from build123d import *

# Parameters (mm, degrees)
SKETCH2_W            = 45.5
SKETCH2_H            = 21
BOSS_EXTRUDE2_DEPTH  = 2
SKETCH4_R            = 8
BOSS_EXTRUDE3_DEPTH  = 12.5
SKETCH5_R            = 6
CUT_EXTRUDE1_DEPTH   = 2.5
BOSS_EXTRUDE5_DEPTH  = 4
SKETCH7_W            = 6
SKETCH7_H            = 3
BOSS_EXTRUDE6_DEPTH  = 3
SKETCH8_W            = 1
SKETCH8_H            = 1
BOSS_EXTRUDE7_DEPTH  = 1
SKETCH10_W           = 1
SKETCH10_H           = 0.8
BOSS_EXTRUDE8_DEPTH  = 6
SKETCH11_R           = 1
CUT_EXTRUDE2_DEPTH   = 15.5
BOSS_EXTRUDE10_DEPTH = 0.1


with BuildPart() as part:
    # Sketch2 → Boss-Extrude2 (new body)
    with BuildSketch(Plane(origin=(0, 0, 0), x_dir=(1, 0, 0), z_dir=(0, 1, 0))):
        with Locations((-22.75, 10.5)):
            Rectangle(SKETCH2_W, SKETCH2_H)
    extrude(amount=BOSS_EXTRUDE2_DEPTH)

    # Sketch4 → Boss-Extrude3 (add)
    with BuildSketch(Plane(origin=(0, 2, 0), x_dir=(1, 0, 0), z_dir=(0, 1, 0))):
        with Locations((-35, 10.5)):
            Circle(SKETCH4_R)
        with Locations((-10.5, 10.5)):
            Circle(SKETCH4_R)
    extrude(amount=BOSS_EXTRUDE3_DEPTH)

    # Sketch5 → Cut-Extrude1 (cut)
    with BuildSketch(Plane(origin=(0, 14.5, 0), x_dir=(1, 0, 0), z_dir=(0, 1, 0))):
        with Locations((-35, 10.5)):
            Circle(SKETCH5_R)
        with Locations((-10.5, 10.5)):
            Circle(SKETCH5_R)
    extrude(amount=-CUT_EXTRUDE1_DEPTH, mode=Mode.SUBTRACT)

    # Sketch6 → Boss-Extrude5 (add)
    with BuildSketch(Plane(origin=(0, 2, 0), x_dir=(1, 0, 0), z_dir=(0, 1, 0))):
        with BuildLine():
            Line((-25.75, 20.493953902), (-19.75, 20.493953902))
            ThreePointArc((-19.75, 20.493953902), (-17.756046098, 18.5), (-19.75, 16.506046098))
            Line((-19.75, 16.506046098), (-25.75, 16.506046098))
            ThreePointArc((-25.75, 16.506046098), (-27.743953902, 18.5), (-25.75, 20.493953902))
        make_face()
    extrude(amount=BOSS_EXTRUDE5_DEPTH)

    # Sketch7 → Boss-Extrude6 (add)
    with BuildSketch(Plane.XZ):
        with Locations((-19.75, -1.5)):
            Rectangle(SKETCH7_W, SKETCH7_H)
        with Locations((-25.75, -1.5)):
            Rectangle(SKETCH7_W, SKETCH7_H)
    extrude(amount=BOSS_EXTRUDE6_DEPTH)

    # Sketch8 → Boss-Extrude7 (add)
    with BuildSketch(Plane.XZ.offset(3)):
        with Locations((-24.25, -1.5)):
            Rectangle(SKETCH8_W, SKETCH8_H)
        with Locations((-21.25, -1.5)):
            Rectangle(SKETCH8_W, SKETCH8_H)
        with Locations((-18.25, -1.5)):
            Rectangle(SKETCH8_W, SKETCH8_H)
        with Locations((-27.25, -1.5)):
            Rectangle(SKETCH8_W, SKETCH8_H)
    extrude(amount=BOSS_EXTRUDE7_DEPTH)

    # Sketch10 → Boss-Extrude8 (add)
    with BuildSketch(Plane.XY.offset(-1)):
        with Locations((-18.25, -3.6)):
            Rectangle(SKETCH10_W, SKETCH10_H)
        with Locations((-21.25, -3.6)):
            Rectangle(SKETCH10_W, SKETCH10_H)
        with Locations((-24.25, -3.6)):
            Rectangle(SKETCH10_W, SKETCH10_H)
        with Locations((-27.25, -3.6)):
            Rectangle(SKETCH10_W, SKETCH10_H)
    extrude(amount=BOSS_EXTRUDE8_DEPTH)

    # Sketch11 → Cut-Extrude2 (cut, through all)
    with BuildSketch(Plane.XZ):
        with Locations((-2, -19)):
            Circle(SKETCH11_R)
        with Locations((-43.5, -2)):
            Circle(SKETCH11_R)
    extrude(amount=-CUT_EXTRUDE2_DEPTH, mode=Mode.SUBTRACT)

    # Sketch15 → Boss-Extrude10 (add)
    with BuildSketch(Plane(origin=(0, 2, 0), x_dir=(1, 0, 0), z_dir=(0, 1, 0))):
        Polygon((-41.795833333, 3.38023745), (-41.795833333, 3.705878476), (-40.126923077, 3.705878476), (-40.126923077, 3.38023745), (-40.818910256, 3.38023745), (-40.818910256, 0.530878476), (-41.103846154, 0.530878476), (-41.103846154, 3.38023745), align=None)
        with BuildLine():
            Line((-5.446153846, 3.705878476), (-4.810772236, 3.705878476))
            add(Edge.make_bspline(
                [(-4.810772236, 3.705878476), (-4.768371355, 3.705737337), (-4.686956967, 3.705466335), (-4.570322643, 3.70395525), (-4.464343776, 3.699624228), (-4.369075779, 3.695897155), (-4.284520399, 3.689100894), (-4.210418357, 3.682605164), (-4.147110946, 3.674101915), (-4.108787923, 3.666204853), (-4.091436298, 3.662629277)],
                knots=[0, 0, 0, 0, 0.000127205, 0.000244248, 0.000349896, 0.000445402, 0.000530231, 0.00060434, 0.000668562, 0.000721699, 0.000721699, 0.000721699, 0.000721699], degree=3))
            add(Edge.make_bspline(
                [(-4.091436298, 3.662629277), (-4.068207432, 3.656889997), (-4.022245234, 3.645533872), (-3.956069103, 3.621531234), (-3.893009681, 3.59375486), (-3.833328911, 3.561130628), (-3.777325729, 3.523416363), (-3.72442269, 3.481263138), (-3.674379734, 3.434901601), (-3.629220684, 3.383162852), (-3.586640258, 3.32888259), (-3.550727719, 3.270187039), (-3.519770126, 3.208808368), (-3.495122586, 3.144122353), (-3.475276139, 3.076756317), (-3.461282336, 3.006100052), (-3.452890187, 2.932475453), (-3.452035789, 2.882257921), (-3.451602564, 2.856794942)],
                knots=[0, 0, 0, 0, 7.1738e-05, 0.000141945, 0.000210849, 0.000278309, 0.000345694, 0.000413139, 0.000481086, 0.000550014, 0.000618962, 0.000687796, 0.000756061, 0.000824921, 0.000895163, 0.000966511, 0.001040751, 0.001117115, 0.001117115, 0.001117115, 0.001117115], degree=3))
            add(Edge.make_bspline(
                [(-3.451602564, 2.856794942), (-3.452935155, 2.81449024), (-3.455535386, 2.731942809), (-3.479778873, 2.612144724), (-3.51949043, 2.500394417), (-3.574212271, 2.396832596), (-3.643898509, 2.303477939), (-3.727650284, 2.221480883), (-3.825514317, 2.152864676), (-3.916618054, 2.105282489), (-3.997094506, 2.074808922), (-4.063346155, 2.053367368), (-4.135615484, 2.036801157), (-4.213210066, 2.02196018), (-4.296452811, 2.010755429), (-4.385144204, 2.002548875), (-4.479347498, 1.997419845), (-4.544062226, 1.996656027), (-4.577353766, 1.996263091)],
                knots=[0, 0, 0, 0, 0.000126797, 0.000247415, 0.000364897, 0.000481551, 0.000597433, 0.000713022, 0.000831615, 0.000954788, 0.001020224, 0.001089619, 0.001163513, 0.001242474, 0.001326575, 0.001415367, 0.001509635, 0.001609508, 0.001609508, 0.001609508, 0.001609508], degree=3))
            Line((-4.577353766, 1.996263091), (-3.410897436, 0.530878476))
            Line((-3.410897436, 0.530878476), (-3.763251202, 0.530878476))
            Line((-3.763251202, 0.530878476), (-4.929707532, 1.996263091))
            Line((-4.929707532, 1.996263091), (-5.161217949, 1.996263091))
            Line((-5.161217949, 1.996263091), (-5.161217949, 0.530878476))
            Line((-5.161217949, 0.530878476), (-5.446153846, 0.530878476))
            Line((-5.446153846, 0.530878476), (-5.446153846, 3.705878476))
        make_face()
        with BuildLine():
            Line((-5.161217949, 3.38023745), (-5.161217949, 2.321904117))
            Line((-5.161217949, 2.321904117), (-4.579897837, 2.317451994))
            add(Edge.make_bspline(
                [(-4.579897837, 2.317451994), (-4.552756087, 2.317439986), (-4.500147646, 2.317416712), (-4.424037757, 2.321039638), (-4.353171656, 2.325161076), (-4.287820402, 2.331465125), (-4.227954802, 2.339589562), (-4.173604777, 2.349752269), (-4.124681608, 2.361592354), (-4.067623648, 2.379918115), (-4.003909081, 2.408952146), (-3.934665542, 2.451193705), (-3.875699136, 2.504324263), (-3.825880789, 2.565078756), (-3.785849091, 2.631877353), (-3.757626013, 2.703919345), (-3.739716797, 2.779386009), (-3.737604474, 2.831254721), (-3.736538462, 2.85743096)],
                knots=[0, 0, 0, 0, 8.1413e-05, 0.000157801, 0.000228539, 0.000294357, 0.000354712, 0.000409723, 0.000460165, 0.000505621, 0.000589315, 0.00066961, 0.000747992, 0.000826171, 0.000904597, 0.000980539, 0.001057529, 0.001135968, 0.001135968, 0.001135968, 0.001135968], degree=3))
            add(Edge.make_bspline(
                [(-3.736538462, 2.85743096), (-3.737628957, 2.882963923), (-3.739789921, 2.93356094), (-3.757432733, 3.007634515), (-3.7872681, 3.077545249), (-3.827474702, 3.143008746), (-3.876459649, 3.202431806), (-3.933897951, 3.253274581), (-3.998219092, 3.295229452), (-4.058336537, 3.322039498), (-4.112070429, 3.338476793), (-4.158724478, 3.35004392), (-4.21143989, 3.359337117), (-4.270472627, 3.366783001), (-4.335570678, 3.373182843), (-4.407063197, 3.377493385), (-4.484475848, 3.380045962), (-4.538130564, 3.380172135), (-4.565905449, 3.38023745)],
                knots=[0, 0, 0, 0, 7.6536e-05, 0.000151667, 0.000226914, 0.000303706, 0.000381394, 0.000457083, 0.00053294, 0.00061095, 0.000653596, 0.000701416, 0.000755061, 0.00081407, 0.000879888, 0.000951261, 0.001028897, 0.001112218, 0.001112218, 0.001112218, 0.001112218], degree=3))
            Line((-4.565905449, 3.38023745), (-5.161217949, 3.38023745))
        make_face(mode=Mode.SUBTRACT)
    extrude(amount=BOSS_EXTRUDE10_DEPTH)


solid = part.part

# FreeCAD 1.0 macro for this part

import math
import FreeCAD as App
import Part
import Sketcher
from FreeCAD import Vector

doc = App.newDocument("Part")
params = doc.addObject("Spreadsheet::Sheet", "Params")
for row, (alias, value) in enumerate([
    ("sketch1_height", "21 mm"),
    ("sketch1_width", "45.5 mm"),
    ("pad1_length", "2 mm"),
    ("sketch2_diameter", "16 mm"),
    ("pad2_length", "12.5 mm"),
    ("sketch3_diameter", "12 mm"),
    ("pocket1_length", "2.5 mm"),
    ("sketch4_width", "6 mm"),
    ("pad3_length", "4 mm"),
    ("sketch5_width", "12 mm"),
    ("sketch5_height", "3 mm"),
    ("pad4_length", "3 mm"),
    ("sketch6_width", "1 mm"),
    ("pad5_length", "1 mm"),
    ("sketch7_width", "1 mm"),
    ("sketch7_height", "0.8 mm"),
    ("pad6_length", "6 mm"),
    ("sketch8_diameter", "2 mm"),
    ("pad7_length", "0.1 mm"),
], start=1):
    params.set(f"A{row}", alias)
    params.set(f"B{row}", "=" + value)
    params.setAlias(f"B{row}", alias)

body = doc.addObject("PartDesign::Body", "Body")

sketch1 = doc.addObject("Sketcher::SketchObject", "Sketch")
body.addObject(sketch1)
sketch1.AttachmentSupport = (doc.XZ_Plane, [""])
sketch1.MapMode = "FlatFace"
sketch1.addGeometry([
    Part.LineSegment(Vector(-46, -21, 0), Vector(-46, 0, 0)),
    Part.LineSegment(Vector(-46, 0, 0), Vector(0, 0, 0)),
    Part.LineSegment(Vector(0, 0, 0), Vector(0, -21, 0)),
    Part.LineSegment(Vector(0, -21, 0), Vector(-46, -21, 0)),
], False)
sketch1.addConstraint([
    Sketcher.Constraint("Coincident", 0, 2, 1, 1),
    Sketcher.Constraint("Coincident", 1, 2, 2, 1),
    Sketcher.Constraint("Coincident", 2, 2, 3, 1),
    Sketcher.Constraint("Coincident", 3, 2, 0, 1),
    Sketcher.Constraint("Vertical", 0),
    Sketcher.Constraint("Horizontal", 1),
    Sketcher.Constraint("Vertical", 2),
    Sketcher.Constraint("Horizontal", 3),
    Sketcher.Constraint("Coincident", 1, 2, -1, 1),
    Sketcher.Constraint("DistanceY", 0, 1, 0, 2, 21.0),
    Sketcher.Constraint("DistanceX", 1, 1, 1, 2, 45.5),
])
sketch1.setExpression("Constraints[9]", "Params.sketch1_height")
sketch1.setExpression("Constraints[10]", "Params.sketch1_width")
pad1 = doc.addObject("PartDesign::Pad", "Pad")
body.addObject(pad1)
pad1.Profile = sketch1
pad1.setExpression("Length", "Params.pad1_length")
pad1.Reversed = True

sketch2 = doc.addObject("Sketcher::SketchObject", "Sketch001")
body.addObject(sketch2)
sketch2.AttachmentSupport = (doc.XZ_Plane, [""])
sketch2.MapMode = "FlatFace"
sketch2.AttachmentOffset = App.Placement(Vector(0, 0, -2), App.Rotation())
sketch2.addGeometry([
    Part.Circle(Vector(-35, -10, 0), Vector(0, 0, 1), 8),
    Part.Circle(Vector(-10, -10, 0), Vector(0, 0, 1), 8),
], False)
sketch2.addConstraint([
    Sketcher.Constraint("Equal", 0, 1),
    Sketcher.Constraint("Horizontal", 0, 3, 1, 3),
    Sketcher.Constraint("Diameter", 0, 16.0),
    Sketcher.Constraint("DistanceX", 0, 3, -1, 1, 35.0),
    Sketcher.Constraint("DistanceY", 0, 3, -1, 1, 10.5),
    Sketcher.Constraint("DistanceX", 1, 3, -1, 1, 10.5),
])
sketch2.setExpression("Constraints[2]", "Params.sketch2_diameter")
pad2 = doc.addObject("PartDesign::Pad", "Pad001")
body.addObject(pad2)
pad2.Profile = sketch2
pad2.setExpression("Length", "Params.pad2_length")
pad2.Reversed = True

sketch3 = doc.addObject("Sketcher::SketchObject", "Sketch002")
body.addObject(sketch3)
sketch3.AttachmentSupport = (doc.XZ_Plane, [""])
sketch3.MapMode = "FlatFace"
sketch3.AttachmentOffset = App.Placement(Vector(0, 0, -14.5), App.Rotation())
sketch3.addGeometry([
    Part.Circle(Vector(-35, -10, 0), Vector(0, 0, 1), 6),
    Part.Circle(Vector(-10, -10, 0), Vector(0, 0, 1), 6),
], False)
sketch3.addConstraint([
    Sketcher.Constraint("Equal", 0, 1),
    Sketcher.Constraint("Horizontal", 0, 3, 1, 3),
    Sketcher.Constraint("Diameter", 0, 12.0),
    Sketcher.Constraint("DistanceX", 0, 3, -1, 1, 35.0),
    Sketcher.Constraint("DistanceY", 0, 3, -1, 1, 10.5),
    Sketcher.Constraint("DistanceX", 1, 3, -1, 1, 10.5),
])
sketch3.setExpression("Constraints[2]", "Params.sketch3_diameter")
pocket1 = doc.addObject("PartDesign::Pocket", "Pocket")
body.addObject(pocket1)
pocket1.Profile = sketch3
pocket1.setExpression("Length", "Params.pocket1_length")
pocket1.Reversed = True

sketch4 = doc.addObject("Sketcher::SketchObject", "Sketch003")
body.addObject(sketch4)
sketch4.AttachmentSupport = (doc.XZ_Plane, [""])
sketch4.MapMode = "FlatFace"
sketch4.AttachmentOffset = App.Placement(Vector(0, 0, -2), App.Rotation())
sketch4.addGeometry([
    Part.LineSegment(Vector(-19.8, -20.5, 0), Vector(-25.8, -20.5, 0)),
    Part.ArcOfCircle(Part.Circle(Vector(-25.8, -18.5, 0), Vector(0, 0, 1), 2), math.radians(90), math.radians(270)),
    Part.LineSegment(Vector(-25.8, -16.5, 0), Vector(-19.8, -16.5, 0)),
    Part.ArcOfCircle(Part.Circle(Vector(-19.8, -18.5, 0), Vector(0, 0, 1), 2), math.radians(-90), math.radians(90)),
], False)
sketch4.addConstraint([
    Sketcher.Constraint("Tangent", 0, 2, 1, 2),
    Sketcher.Constraint("Tangent", 1, 1, 2, 1),
    Sketcher.Constraint("Tangent", 2, 2, 3, 2),
    Sketcher.Constraint("Tangent", 3, 1, 0, 1),
    Sketcher.Constraint("Horizontal", 0),
    Sketcher.Constraint("Horizontal", 2),
    Sketcher.Constraint("DistanceX", 0, 2, 0, 1, 6.0),
    Sketcher.Constraint("DistanceY", 1, 3, -1, 1, 18.5),
    Sketcher.Constraint("DistanceX", 1, 3, -1, 1, 25.75),
    Sketcher.Constraint("Radius", 1, 1.993954),
])
sketch4.setExpression("Constraints[6]", "Params.sketch4_width")
pad3 = doc.addObject("PartDesign::Pad", "Pad002")
body.addObject(pad3)
pad3.Profile = sketch4
pad3.setExpression("Length", "Params.pad3_length")
pad3.Reversed = True

sketch5 = doc.addObject("Sketcher::SketchObject", "Sketch004")
body.addObject(sketch5)
sketch5.AttachmentSupport = (doc.XZ_Plane, [""])
sketch5.MapMode = "FlatFace"
sketch5.addGeometry([
    Part.LineSegment(Vector(-16.8, -3, 0), Vector(-16.8, 0, 0)),
    Part.LineSegment(Vector(-16.8, 0, 0), Vector(-28.8, 0, 0)),
    Part.LineSegment(Vector(-28.8, 0, 0), Vector(-28.8, -3, 0)),
    Part.LineSegment(Vector(-28.8, -3, 0), Vector(-16.8, -3, 0)),
], False)
sketch5.addConstraint([
    Sketcher.Constraint("Coincident", 0, 2, 1, 1),
    Sketcher.Constraint("Coincident", 1, 2, 2, 1),
    Sketcher.Constraint("Coincident", 2, 2, 3, 1),
    Sketcher.Constraint("Coincident", 3, 2, 0, 1),
    Sketcher.Constraint("Vertical", 0),
    Sketcher.Constraint("Horizontal", 1),
    Sketcher.Constraint("Vertical", 2),
    Sketcher.Constraint("Horizontal", 3),
    Sketcher.Constraint("PointOnObject", 0, 2, -1),
    Sketcher.Constraint("DistanceX", 1, 2, 1, 1, 12.0),
    Sketcher.Constraint("DistanceY", 0, 1, 0, 2, 3.0),
    Sketcher.Constraint("DistanceX", 0, 2, -1, 1, 16.75),
])
sketch5.setExpression("Constraints[9]", "Params.sketch5_width")
sketch5.setExpression("Constraints[10]", "Params.sketch5_height")
pad4 = doc.addObject("PartDesign::Pad", "Pad003")
body.addObject(pad4)
pad4.Profile = sketch5
pad4.setExpression("Length", "Params.pad4_length")

sketch6 = doc.addObject("Sketcher::SketchObject", "Sketch005")
body.addObject(sketch6)
sketch6.AttachmentSupport = (doc.XZ_Plane, [""])
sketch6.MapMode = "FlatFace"
sketch6.AttachmentOffset = App.Placement(Vector(0, 0, 3), App.Rotation())
sketch6.addGeometry([
    Part.LineSegment(Vector(-24.8, -1, 0), Vector(-24.8, -2, 0)),
    Part.LineSegment(Vector(-24.8, -2, 0), Vector(-23.8, -2, 0)),
    Part.LineSegment(Vector(-23.8, -2, 0), Vector(-23.8, -1, 0)),
    Part.LineSegment(Vector(-23.8, -1, 0), Vector(-24.8, -1, 0)),
    Part.LineSegment(Vector(-21.8, -1, 0), Vector(-21.8, -2, 0)),
    Part.LineSegment(Vector(-21.8, -2, 0), Vector(-20.8, -2, 0)),
    Part.LineSegment(Vector(-20.8, -2, 0), Vector(-20.8, -1, 0)),
    Part.LineSegment(Vector(-20.8, -1, 0), Vector(-21.8, -1, 0)),
    Part.LineSegment(Vector(-18.8, -1, 0), Vector(-18.8, -2, 0)),
    Part.LineSegment(Vector(-18.8, -2, 0), Vector(-17.8, -2, 0)),
    Part.LineSegment(Vector(-17.8, -2, 0), Vector(-17.8, -1, 0)),
    Part.LineSegment(Vector(-17.8, -1, 0), Vector(-18.8, -1, 0)),
    Part.LineSegment(Vector(-27.8, -1, 0), Vector(-27.8, -2, 0)),
    Part.LineSegment(Vector(-27.8, -2, 0), Vector(-26.8, -2, 0)),
    Part.LineSegment(Vector(-26.8, -2, 0), Vector(-26.8, -1, 0)),
    Part.LineSegment(Vector(-26.8, -1, 0), Vector(-27.8, -1, 0)),
], False)
sketch6.addConstraint([
    Sketcher.Constraint("Coincident", 0, 2, 1, 1),
    Sketcher.Constraint("Coincident", 1, 2, 2, 1),
    Sketcher.Constraint("Coincident", 2, 2, 3, 1),
    Sketcher.Constraint("Coincident", 3, 2, 0, 1),
    Sketcher.Constraint("Coincident", 4, 2, 5, 1),
    Sketcher.Constraint("Coincident", 5, 2, 6, 1),
    Sketcher.Constraint("Coincident", 6, 2, 7, 1),
    Sketcher.Constraint("Coincident", 7, 2, 4, 1),
    Sketcher.Constraint("Coincident", 8, 2, 9, 1),
    Sketcher.Constraint("Coincident", 9, 2, 10, 1),
    Sketcher.Constraint("Coincident", 10, 2, 11, 1),
    Sketcher.Constraint("Coincident", 11, 2, 8, 1),
    Sketcher.Constraint("Coincident", 12, 2, 13, 1),
    Sketcher.Constraint("Coincident", 13, 2, 14, 1),
    Sketcher.Constraint("Coincident", 14, 2, 15, 1),
    Sketcher.Constraint("Coincident", 15, 2, 12, 1),
    Sketcher.Constraint("Vertical", 0),
    Sketcher.Constraint("Horizontal", 1),
    Sketcher.Constraint("Vertical", 2),
    Sketcher.Constraint("Horizontal", 3),
    Sketcher.Constraint("Vertical", 4),
    Sketcher.Constraint("Horizontal", 5),
    Sketcher.Constraint("Vertical", 6),
    Sketcher.Constraint("Horizontal", 7),
    Sketcher.Constraint("Vertical", 8),
    Sketcher.Constraint("Horizontal", 9),
    Sketcher.Constraint("Vertical", 10),
    Sketcher.Constraint("Horizontal", 11),
    Sketcher.Constraint("Vertical", 12),
    Sketcher.Constraint("Horizontal", 13),
    Sketcher.Constraint("Vertical", 14),
    Sketcher.Constraint("Horizontal", 15),
    Sketcher.Constraint("Horizontal", 1, 2, 4, 2),
    Sketcher.Constraint("Horizontal", 3, 2, 6, 2),
    Sketcher.Constraint("Horizontal", 5, 2, 8, 2),
    Sketcher.Constraint("Horizontal", 7, 2, 10, 2),
    Sketcher.Constraint("Horizontal", 9, 2, 12, 2),
    Sketcher.Constraint("Horizontal", 11, 2, 14, 2),
    Sketcher.Constraint("Equal", 3, 5),
    Sketcher.Constraint("Equal", 7, 9),
    Sketcher.Constraint("Equal", 11, 13),
    Sketcher.Constraint("Equal", 15, 0),
    Sketcher.Constraint("DistanceX", 1, 1, 1, 2, 1.0),
    Sketcher.Constraint("DistanceY", 0, 2, -1, 1, 2.0),
    Sketcher.Constraint("DistanceX", 1, 2, 4, 2, 2.0),
    Sketcher.Constraint("DistanceX", 5, 2, 8, 2, 2.0),
    Sketcher.Constraint("DistanceX", 12, 2, 0, 2, 3.0),
    Sketcher.Constraint("DistanceX", 0, 2, -1, 1, 24.75),
])
sketch6.setExpression("Constraints[42]", "Params.sketch6_width")
pad5 = doc.addObject("PartDesign::Pad", "Pad004")
body.addObject(pad5)
pad5.Profile = sketch6
pad5.setExpression("Length", "Params.pad5_length")

sketch7 = doc.addObject("Sketcher::SketchObject", "Sketch006")
body.addObject(sketch7)
sketch7.AttachmentSupport = (doc.XY_Plane, [""])
sketch7.MapMode = "FlatFace"
sketch7.AttachmentOffset = App.Placement(Vector(0, 0, -1), App.Rotation())
sketch7.addGeometry([
    Part.LineSegment(Vector(-18.8, -3.2, 0), Vector(-18.8, -4, 0)),
    Part.LineSegment(Vector(-18.8, -4, 0), Vector(-17.8, -4, 0)),
    Part.LineSegment(Vector(-17.8, -4, 0), Vector(-17.8, -3.2, 0)),
    Part.LineSegment(Vector(-17.8, -3.2, 0), Vector(-18.8, -3.2, 0)),
    Part.LineSegment(Vector(-21.8, -3.2, 0), Vector(-21.8, -4, 0)),
    Part.LineSegment(Vector(-21.8, -4, 0), Vector(-20.8, -4, 0)),
    Part.LineSegment(Vector(-20.8, -4, 0), Vector(-20.8, -3.2, 0)),
    Part.LineSegment(Vector(-20.8, -3.2, 0), Vector(-21.8, -3.2, 0)),
    Part.LineSegment(Vector(-24.8, -3.2, 0), Vector(-24.8, -4, 0)),
    Part.LineSegment(Vector(-24.8, -4, 0), Vector(-23.8, -4, 0)),
    Part.LineSegment(Vector(-23.8, -4, 0), Vector(-23.8, -3.2, 0)),
    Part.LineSegment(Vector(-23.8, -3.2, 0), Vector(-24.8, -3.2, 0)),
    Part.LineSegment(Vector(-27.8, -3.2, 0), Vector(-27.8, -4, 0)),
    Part.LineSegment(Vector(-27.8, -4, 0), Vector(-26.8, -4, 0)),
    Part.LineSegment(Vector(-26.8, -4, 0), Vector(-26.8, -3.2, 0)),
    Part.LineSegment(Vector(-26.8, -3.2, 0), Vector(-27.8, -3.2, 0)),
], False)
sketch7.addConstraint([
    Sketcher.Constraint("Coincident", 0, 2, 1, 1),
    Sketcher.Constraint("Coincident", 1, 2, 2, 1),
    Sketcher.Constraint("Coincident", 2, 2, 3, 1),
    Sketcher.Constraint("Coincident", 3, 2, 0, 1),
    Sketcher.Constraint("Coincident", 4, 2, 5, 1),
    Sketcher.Constraint("Coincident", 5, 2, 6, 1),
    Sketcher.Constraint("Coincident", 6, 2, 7, 1),
    Sketcher.Constraint("Coincident", 7, 2, 4, 1),
    Sketcher.Constraint("Coincident", 8, 2, 9, 1),
    Sketcher.Constraint("Coincident", 9, 2, 10, 1),
    Sketcher.Constraint("Coincident", 10, 2, 11, 1),
    Sketcher.Constraint("Coincident", 11, 2, 8, 1),
    Sketcher.Constraint("Coincident", 12, 2, 13, 1),
    Sketcher.Constraint("Coincident", 13, 2, 14, 1),
    Sketcher.Constraint("Coincident", 14, 2, 15, 1),
    Sketcher.Constraint("Coincident", 15, 2, 12, 1),
    Sketcher.Constraint("Vertical", 0),
    Sketcher.Constraint("Horizontal", 1),
    Sketcher.Constraint("Vertical", 2),
    Sketcher.Constraint("Horizontal", 3),
    Sketcher.Constraint("Vertical", 4),
    Sketcher.Constraint("Horizontal", 5),
    Sketcher.Constraint("Vertical", 6),
    Sketcher.Constraint("Horizontal", 7),
    Sketcher.Constraint("Vertical", 8),
    Sketcher.Constraint("Horizontal", 9),
    Sketcher.Constraint("Vertical", 10),
    Sketcher.Constraint("Horizontal", 11),
    Sketcher.Constraint("Vertical", 12),
    Sketcher.Constraint("Horizontal", 13),
    Sketcher.Constraint("Vertical", 14),
    Sketcher.Constraint("Horizontal", 15),
    Sketcher.Constraint("Horizontal", 1, 2, 4, 2),
    Sketcher.Constraint("Horizontal", 3, 2, 6, 2),
    Sketcher.Constraint("Horizontal", 5, 2, 8, 2),
    Sketcher.Constraint("Horizontal", 7, 2, 10, 2),
    Sketcher.Constraint("Horizontal", 9, 2, 12, 2),
    Sketcher.Constraint("Horizontal", 11, 2, 14, 2),
    Sketcher.Constraint("Equal", 3, 5),
    Sketcher.Constraint("Equal", 7, 9),
    Sketcher.Constraint("Equal", 11, 13),
    Sketcher.Constraint("DistanceX", 1, 1, 1, 2, 1.0),
    Sketcher.Constraint("DistanceY", 0, 2, 0, 1, 0.8),
    Sketcher.Constraint("DistanceY", 0, 2, -1, 1, 4.0),
    Sketcher.Constraint("DistanceX", 4, 2, 0, 2, 3.0),
    Sketcher.Constraint("DistanceX", 8, 2, 4, 2, 3.0),
    Sketcher.Constraint("DistanceX", 12, 2, 8, 2, 3.0),
    Sketcher.Constraint("DistanceX", 0, 2, -1, 1, 18.75),
])
sketch7.setExpression("Constraints[41]", "Params.sketch7_width")
sketch7.setExpression("Constraints[42]", "Params.sketch7_height")
pad6 = doc.addObject("PartDesign::Pad", "Pad005")
body.addObject(pad6)
pad6.Profile = sketch7
pad6.setExpression("Length", "Params.pad6_length")

sketch8 = doc.addObject("Sketcher::SketchObject", "Sketch007")
body.addObject(sketch8)
sketch8.AttachmentSupport = (doc.XZ_Plane, [""])
sketch8.MapMode = "FlatFace"
sketch8.addGeometry([
    Part.Circle(Vector(-2, -19, 0), Vector(0, 0, 1), 1),
    Part.Circle(Vector(-43.5, -2, 0), Vector(0, 0, 1), 1),
], False)
sketch8.addConstraint([
    Sketcher.Constraint("Equal", 0, 1),
    Sketcher.Constraint("Diameter", 0, 2.0),
    Sketcher.Constraint("DistanceX", 0, 3, -1, 1, 2.0),
    Sketcher.Constraint("DistanceY", 0, 3, -1, 1, 19.0),
    Sketcher.Constraint("DistanceY", 1, 3, -1, 1, 2.0),
    Sketcher.Constraint("DistanceX", 1, 3, -1, 1, 43.5),
])
sketch8.setExpression("Constraints[1]", "Params.sketch8_diameter")
pocket2 = doc.addObject("PartDesign::Pocket", "Pocket001")
body.addObject(pocket2)
pocket2.Profile = sketch8
pocket2.Type = "ThroughAll"

sketch9 = doc.addObject("Sketcher::SketchObject", "Sketch008")
body.addObject(sketch9)
sketch9.AttachmentSupport = (doc.XZ_Plane, [""])
sketch9.MapMode = "FlatFace"
sketch9.AttachmentOffset = App.Placement(Vector(0, 0, -2), App.Rotation())
sketch9.addGeometry([
    Part.LineSegment(Vector(-41.795833, -3.705878, 0), Vector(-41.795833, -3.380237, 0)),
    Part.LineSegment(Vector(-41.795833, -3.380237, 0), Vector(-41.103846, -3.380237, 0)),
    Part.LineSegment(Vector(-41.103846, -3.380237, 0), Vector(-41.103846, -0.530878, 0)),
    Part.LineSegment(Vector(-41.103846, -0.530878, 0), Vector(-40.81891, -0.530878, 0)),
    Part.LineSegment(Vector(-40.81891, -0.530878, 0), Vector(-40.81891, -3.380237, 0)),
    Part.LineSegment(Vector(-40.81891, -3.380237, 0), Vector(-40.126923, -3.380237, 0)),
    Part.LineSegment(Vector(-40.126923, -3.380237, 0), Vector(-40.126923, -3.705878, 0)),
    Part.LineSegment(Vector(-40.126923, -3.705878, 0), Vector(-41.795833, -3.705878, 0)),
    Part.LineSegment(Vector(-4.810772, -3.705878, 0), Vector(-5.446154, -3.705878, 0)),
    Part.LineSegment(Vector(-5.446154, -3.705878, 0), Vector(-5.446154, -0.530878, 0)),
    Part.LineSegment(Vector(-5.446154, -0.530878, 0), Vector(-5.161218, -0.530878, 0)),
    Part.LineSegment(Vector(-5.161218, -0.530878, 0), Vector(-5.161218, -1.996263, 0)),
    Part.LineSegment(Vector(-5.161218, -1.996263, 0), Vector(-4.929708, -1.996263, 0)),
    Part.LineSegment(Vector(-4.929708, -1.996263, 0), Vector(-3.763251, -0.530878, 0)),
    Part.LineSegment(Vector(-3.763251, -0.530878, 0), Vector(-3.410897, -0.530878, 0)),
    Part.LineSegment(Vector(-3.410897, -0.530878, 0), Vector(-4.577354, -1.996263, 0)),
    Part.BSplineCurve([Vector(-3.451603, -2.856795, 0), Vector(-3.452935, -2.81449, 0), Vector(-3.455535, -2.731943, 0), Vector(-3.479779, -2.612145, 0), Vector(-3.51949, -2.500394, 0), Vector(-3.574212, -2.396833, 0), Vector(-3.643899, -2.303478, 0), Vector(-3.72765, -2.221481, 0), Vector(-3.825514, -2.152865, 0), Vector(-3.916618, -2.105282, 0), Vector(-3.997095, -2.074809, 0), Vector(-4.063346, -2.053367, 0), Vector(-4.135615, -2.036801, 0), Vector(-4.21321, -2.02196, 0), Vector(-4.296453, -2.010755, 0), Vector(-4.385144, -2.002549, 0), Vector(-4.479347, -1.99742, 0), Vector(-4.544062, -1.996656, 0), Vector(-4.577354, -1.996263, 0)], [4, 1, 1, 1, 1, 1, 1, 1, 1, 1, 1, 1, 1, 1, 1, 1, 4], [0, 0.000126797, 0.000247415, 0.000364897, 0.000481551, 0.000597433, 0.000713022, 0.000831615, 0.000954788, 0.001020224, 0.001089619, 0.001163513, 0.001242474, 0.001326575, 0.001415367, 0.001509635, 0.001609508], False, 3, [1, 1, 1, 1, 1, 1, 1, 1, 1, 1, 1, 1, 1, 1, 1, 1, 1, 1, 1], False),
    Part.BSplineCurve([Vector(-4.091436, -3.662629, 0), Vector(-4.068207, -3.65689, 0), Vector(-4.022245, -3.645534, 0), Vector(-3.956069, -3.621531, 0), Vector(-3.89301, -3.593755, 0), Vector(-3.833329, -3.561131, 0), Vector(-3.777326, -3.523416, 0), Vector(-3.724423, -3.481263, 0), Vector(-3.67438, -3.434902, 0), Vector(-3.629221, -3.383163, 0), Vector(-3.58664, -3.328883, 0), Vector(-3.550728, -3.270187, 0), Vector(-3.51977, -3.208808, 0), Vector(-3.495123, -3.144122, 0), Vector(-3.475276, -3.076756, 0), Vector(-3.461282, -3.0061, 0), Vector(-3.45289, -2.932475, 0), Vector(-3.452036, -2.882258, 0), Vector(-3.451603, -2.856795, 0)], [4, 1, 1, 1, 1, 1, 1, 1, 1, 1, 1, 1, 1, 1, 1, 1, 4], [0, 0.000071738, 0.000141945, 0.000210849, 0.000278309, 0.000345694, 0.000413139, 0.000481086, 0.000550014, 0.000618962, 0.000687796, 0.000756061, 0.000824921, 0.000895163, 0.000966511, 0.001040751, 0.001117115], False, 3, [1, 1, 1, 1, 1, 1, 1, 1, 1, 1, 1, 1, 1, 1, 1, 1, 1, 1, 1], False),
    Part.BSplineCurve([Vector(-4.810772, -3.705878, 0), Vector(-4.768371, -3.705737, 0), Vector(-4.686957, -3.705466, 0), Vector(-4.570323, -3.703955, 0), Vector(-4.464344, -3.699624, 0), Vector(-4.369076, -3.695897, 0), Vector(-4.28452, -3.689101, 0), Vector(-4.210418, -3.682605, 0), Vector(-4.147111, -3.674102, 0), Vector(-4.108788, -3.666205, 0), Vector(-4.091436, -3.662629, 0)], [4, 1, 1, 1, 1, 1, 1, 1, 4], [0, 0.000127205, 0.000244248, 0.000349896, 0.000445402, 0.000530231, 0.00060434, 0.000668562, 0.000721699], False, 3, [1, 1, 1, 1, 1, 1, 1, 1, 1, 1, 1], False),
    Part.LineSegment(Vector(-5.161218, -3.380237, 0), Vector(-4.565905, -3.380237, 0)),
    Part.BSplineCurve([Vector(-3.736538, -2.857431, 0), Vector(-3.737629, -2.882964, 0), Vector(-3.73979, -2.933561, 0), Vector(-3.757433, -3.007635, 0), Vector(-3.787268, -3.077545, 0), Vector(-3.827475, -3.143009, 0), Vector(-3.87646, -3.202432, 0), Vector(-3.933898, -3.253275, 0), Vector(-3.998219, -3.295229, 0), Vector(-4.058337, -3.322039, 0), Vector(-4.11207, -3.338477, 0), Vector(-4.158724, -3.350044, 0), Vector(-4.21144, -3.359337, 0), Vector(-4.270473, -3.366783, 0), Vector(-4.335571, -3.373183, 0), Vector(-4.407063, -3.377493, 0), Vector(-4.484476, -3.380046, 0), Vector(-4.538131, -3.380172, 0), Vector(-4.565905, -3.380237, 0)], [4, 1, 1, 1, 1, 1, 1, 1, 1, 1, 1, 1, 1, 1, 1, 1, 4], [0, 0.000076536, 0.000151667, 0.000226914, 0.000303706, 0.000381394, 0.000457083, 0.00053294, 0.00061095, 0.000653596, 0.000701416, 0.000755061, 0.00081407, 0.000879888, 0.000951261, 0.001028897, 0.001112218], False, 3, [1, 1, 1, 1, 1, 1, 1, 1, 1, 1, 1, 1, 1, 1, 1, 1, 1, 1, 1], False),
    Part.BSplineCurve([Vector(-4.579898, -2.317452, 0), Vector(-4.552756, -2.31744, 0), Vector(-4.500148, -2.317417, 0), Vector(-4.424038, -2.32104, 0), Vector(-4.353172, -2.325161, 0), Vector(-4.28782, -2.331465, 0), Vector(-4.227955, -2.33959, 0), Vector(-4.173605, -2.349752, 0), Vector(-4.124682, -2.361592, 0), Vector(-4.067624, -2.379918, 0), Vector(-4.003909, -2.408952, 0), Vector(-3.934666, -2.451194, 0), Vector(-3.875699, -2.504324, 0), Vector(-3.825881, -2.565079, 0), Vector(-3.785849, -2.631877, 0), Vector(-3.757626, -2.703919, 0), Vector(-3.739717, -2.779386, 0), Vector(-3.737604, -2.831255, 0), Vector(-3.736538, -2.857431, 0)], [4, 1, 1, 1, 1, 1, 1, 1, 1, 1, 1, 1, 1, 1, 1, 1, 4], [0, 0.000081413, 0.000157801, 0.000228539, 0.000294357, 0.000354712, 0.000409723, 0.000460165, 0.000505621, 0.000589315, 0.00066961, 0.000747992, 0.000826171, 0.000904597, 0.000980539, 0.001057529, 0.001135968], False, 3, [1, 1, 1, 1, 1, 1, 1, 1, 1, 1, 1, 1, 1, 1, 1, 1, 1, 1, 1], False),
    Part.LineSegment(Vector(-4.579898, -2.317452, 0), Vector(-5.161218, -2.321904, 0)),
    Part.LineSegment(Vector(-5.161218, -2.321904, 0), Vector(-5.161218, -3.380237, 0)),
], False)
sketch9.addConstraint([
    Sketcher.Constraint("Block", 16),
    Sketcher.Constraint("Block", 17),
    Sketcher.Constraint("Block", 18),
    Sketcher.Constraint("Block", 20),
    Sketcher.Constraint("Block", 21),
    Sketcher.Constraint("Coincident", 0, 2, 1, 1),
    Sketcher.Constraint("Coincident", 1, 2, 2, 1),
    Sketcher.Constraint("Coincident", 2, 2, 3, 1),
    Sketcher.Constraint("Coincident", 3, 2, 4, 1),
    Sketcher.Constraint("Coincident", 4, 2, 5, 1),
    Sketcher.Constraint("Coincident", 5, 2, 6, 1),
    Sketcher.Constraint("Coincident", 6, 2, 7, 1),
    Sketcher.Constraint("Coincident", 7, 2, 0, 1),
    Sketcher.Constraint("Coincident", 8, 2, 9, 1),
    Sketcher.Constraint("Coincident", 9, 2, 10, 1),
    Sketcher.Constraint("Coincident", 10, 2, 11, 1),
    Sketcher.Constraint("Coincident", 11, 2, 12, 1),
    Sketcher.Constraint("Coincident", 12, 2, 13, 1),
    Sketcher.Constraint("Coincident", 13, 2, 14, 1),
    Sketcher.Constraint("Coincident", 14, 2, 15, 1),
    Sketcher.Constraint("Coincident", 15, 2, 16, 2),
    Sketcher.Constraint("Coincident", 18, 1, 8, 1),
    Sketcher.Constraint("Coincident", 19, 2, 20, 2),
    Sketcher.Constraint("Coincident", 21, 1, 22, 1),
    Sketcher.Constraint("Coincident", 22, 2, 23, 1),
    Sketcher.Constraint("Coincident", 23, 2, 19, 1),
    Sketcher.Constraint("Vertical", 0),
    Sketcher.Constraint("Horizontal", 1),
    Sketcher.Constraint("Vertical", 2),
    Sketcher.Constraint("Horizontal", 3),
    Sketcher.Constraint("Vertical", 4),
    Sketcher.Constraint("Horizontal", 5),
    Sketcher.Constraint("Vertical", 6),
    Sketcher.Constraint("Horizontal", 7),
    Sketcher.Constraint("Horizontal", 8),
    Sketcher.Constraint("Vertical", 9),
    Sketcher.Constraint("Horizontal", 10),
    Sketcher.Constraint("Vertical", 11),
    Sketcher.Constraint("Horizontal", 12),
    Sketcher.Constraint("Horizontal", 14),
    Sketcher.Constraint("Horizontal", 19),
    Sketcher.Constraint("Vertical", 23),
    Sketcher.Constraint("Parallel", 13, 15),
    Sketcher.Constraint("Horizontal", 1, 2, 4, 2),
    Sketcher.Constraint("Horizontal", 7, 2, 8, 2),
    Sketcher.Constraint("Horizontal", 3, 2, 9, 2),
    Sketcher.Constraint("Horizontal", 10, 2, 13, 2),
    Sketcher.Constraint("Horizontal", 12, 2, 15, 2),
    Sketcher.Constraint("Horizontal", 5, 2, 19, 2),
    Sketcher.Constraint("Vertical", 11, 2, 22, 2),
    Sketcher.Constraint("Equal", 1, 5),
    Sketcher.Constraint("Equal", 3, 10),
    Sketcher.Constraint("DistanceY", 9, 1, 9, 2, 3.175),
    Sketcher.Constraint("DistanceX", 7, 2, 7, 1, 1.66891),
    Sketcher.Constraint("DistanceX", 8, 2, 8, 1, 0.635382),
    Sketcher.Constraint("DistanceX", 12, 1, 12, 2, 0.23151),
    Sketcher.Constraint("Distance", 13, 1.872958),
    Sketcher.Constraint("DistanceX", 1, 1, 1, 2, 0.691987),
    Sketcher.Constraint("DistanceY", 23, 2, 23, 1, 1.058333),
    Sketcher.Constraint("DistanceX", 3, 2, -1, 1, 40.81891),
])
pad7 = doc.addObject("PartDesign::Pad", "Pad006")
body.addObject(pad7)
pad7.Profile = sketch9
pad7.setExpression("Length", "Params.pad7_length")
pad7.Reversed = True

doc.recompute()
